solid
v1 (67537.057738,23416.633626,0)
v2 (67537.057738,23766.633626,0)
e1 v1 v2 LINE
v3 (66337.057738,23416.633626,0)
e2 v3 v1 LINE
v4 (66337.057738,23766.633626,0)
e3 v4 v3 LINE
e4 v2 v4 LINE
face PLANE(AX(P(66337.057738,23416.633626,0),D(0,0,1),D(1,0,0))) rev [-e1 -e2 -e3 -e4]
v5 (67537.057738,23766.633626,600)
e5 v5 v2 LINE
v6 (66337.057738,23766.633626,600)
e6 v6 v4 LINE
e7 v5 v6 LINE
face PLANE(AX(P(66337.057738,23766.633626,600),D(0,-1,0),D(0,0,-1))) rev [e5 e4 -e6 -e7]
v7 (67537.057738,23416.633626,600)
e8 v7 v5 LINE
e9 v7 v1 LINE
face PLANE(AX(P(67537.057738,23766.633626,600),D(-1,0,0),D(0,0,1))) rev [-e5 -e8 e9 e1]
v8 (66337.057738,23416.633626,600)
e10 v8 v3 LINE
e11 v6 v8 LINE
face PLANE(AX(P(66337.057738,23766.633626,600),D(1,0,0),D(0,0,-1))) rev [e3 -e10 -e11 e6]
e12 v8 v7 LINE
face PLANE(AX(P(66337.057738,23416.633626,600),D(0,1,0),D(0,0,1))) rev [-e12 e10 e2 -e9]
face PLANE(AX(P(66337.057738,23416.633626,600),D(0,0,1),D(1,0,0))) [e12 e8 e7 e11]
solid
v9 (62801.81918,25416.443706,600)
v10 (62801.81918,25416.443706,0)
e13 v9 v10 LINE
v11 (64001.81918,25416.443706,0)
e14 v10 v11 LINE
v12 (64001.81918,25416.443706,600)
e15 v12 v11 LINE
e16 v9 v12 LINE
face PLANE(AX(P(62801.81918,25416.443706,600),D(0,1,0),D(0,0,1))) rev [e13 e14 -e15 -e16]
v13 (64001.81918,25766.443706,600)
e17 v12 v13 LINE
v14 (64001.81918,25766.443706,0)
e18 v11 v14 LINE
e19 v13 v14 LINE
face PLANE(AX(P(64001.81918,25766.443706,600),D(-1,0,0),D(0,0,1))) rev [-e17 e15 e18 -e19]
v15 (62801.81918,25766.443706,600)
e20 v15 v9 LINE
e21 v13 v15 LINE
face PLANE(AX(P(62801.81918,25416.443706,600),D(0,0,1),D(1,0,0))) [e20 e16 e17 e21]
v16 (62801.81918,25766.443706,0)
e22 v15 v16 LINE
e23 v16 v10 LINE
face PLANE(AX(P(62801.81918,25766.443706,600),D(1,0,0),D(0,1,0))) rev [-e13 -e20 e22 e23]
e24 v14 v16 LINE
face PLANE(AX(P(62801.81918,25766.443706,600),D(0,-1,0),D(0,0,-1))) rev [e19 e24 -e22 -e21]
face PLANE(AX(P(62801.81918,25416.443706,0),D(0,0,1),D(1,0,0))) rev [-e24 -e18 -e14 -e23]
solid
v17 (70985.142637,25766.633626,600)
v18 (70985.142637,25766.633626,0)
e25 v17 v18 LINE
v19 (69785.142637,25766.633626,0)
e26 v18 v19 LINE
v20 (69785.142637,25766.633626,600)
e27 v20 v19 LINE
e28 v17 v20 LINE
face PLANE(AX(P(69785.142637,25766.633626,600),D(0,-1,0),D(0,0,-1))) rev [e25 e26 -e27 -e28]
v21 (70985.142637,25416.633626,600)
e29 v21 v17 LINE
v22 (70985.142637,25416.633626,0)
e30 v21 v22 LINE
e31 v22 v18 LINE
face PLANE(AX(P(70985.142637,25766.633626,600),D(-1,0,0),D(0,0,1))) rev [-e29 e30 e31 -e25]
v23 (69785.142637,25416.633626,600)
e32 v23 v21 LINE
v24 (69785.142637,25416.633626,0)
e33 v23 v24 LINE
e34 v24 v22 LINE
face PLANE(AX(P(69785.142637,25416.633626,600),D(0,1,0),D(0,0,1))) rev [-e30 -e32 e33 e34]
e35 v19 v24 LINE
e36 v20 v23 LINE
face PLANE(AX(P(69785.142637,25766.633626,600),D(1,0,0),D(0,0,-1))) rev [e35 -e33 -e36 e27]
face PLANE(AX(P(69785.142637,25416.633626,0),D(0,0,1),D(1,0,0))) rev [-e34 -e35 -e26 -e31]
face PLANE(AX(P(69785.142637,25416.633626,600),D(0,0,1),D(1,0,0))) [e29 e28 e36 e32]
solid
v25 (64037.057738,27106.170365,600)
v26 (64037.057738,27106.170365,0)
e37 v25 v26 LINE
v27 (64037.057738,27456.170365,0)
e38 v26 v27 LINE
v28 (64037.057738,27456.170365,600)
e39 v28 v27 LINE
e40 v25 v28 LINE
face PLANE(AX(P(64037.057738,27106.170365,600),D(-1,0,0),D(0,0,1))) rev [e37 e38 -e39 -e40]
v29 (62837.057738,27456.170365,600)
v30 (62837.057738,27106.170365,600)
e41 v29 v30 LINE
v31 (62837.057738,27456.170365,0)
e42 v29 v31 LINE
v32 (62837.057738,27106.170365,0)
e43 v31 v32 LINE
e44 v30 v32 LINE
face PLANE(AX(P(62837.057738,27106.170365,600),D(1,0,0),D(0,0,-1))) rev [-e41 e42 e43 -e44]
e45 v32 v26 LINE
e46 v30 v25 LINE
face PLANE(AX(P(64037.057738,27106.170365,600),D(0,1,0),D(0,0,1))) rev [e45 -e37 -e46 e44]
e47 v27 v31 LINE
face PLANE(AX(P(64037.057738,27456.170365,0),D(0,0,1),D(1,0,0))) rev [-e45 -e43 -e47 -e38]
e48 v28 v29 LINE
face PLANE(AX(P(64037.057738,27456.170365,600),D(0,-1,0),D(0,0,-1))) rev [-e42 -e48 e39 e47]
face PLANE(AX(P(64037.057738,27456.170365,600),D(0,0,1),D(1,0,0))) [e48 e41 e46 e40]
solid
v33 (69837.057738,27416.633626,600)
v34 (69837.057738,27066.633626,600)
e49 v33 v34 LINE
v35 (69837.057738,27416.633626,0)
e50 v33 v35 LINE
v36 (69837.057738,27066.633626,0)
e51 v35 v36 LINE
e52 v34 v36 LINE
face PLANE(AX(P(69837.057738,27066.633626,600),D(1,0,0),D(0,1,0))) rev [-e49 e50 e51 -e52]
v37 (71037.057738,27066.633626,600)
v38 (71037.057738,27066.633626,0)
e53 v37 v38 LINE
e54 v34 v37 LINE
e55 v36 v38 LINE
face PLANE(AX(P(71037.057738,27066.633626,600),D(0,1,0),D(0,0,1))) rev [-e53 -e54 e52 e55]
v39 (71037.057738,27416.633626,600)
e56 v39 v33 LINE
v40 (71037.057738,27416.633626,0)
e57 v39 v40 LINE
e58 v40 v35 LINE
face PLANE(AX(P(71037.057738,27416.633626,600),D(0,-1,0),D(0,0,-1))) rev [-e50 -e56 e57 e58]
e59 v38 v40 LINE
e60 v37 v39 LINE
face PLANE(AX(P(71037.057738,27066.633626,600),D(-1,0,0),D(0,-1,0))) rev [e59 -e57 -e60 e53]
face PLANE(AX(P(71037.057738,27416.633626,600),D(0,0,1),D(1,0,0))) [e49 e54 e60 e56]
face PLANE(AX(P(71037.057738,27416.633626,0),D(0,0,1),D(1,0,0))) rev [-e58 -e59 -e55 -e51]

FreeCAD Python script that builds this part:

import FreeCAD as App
import Part
import Sketcher
from FreeCAD import Vector
Q = App.Units.Quantity


def add_polygon(sketch, points):
    """Adds a closed chain of lines whose ends are joined by coincident constraints."""
    first, n = sketch.GeometryCount, len(points)
    for a, b in zip(points, points[1:] + points[:1]):
        sketch.addGeometry(Part.LineSegment(App.Vector(*a, 0), App.Vector(*b, 0)), False)
    for i in range(n):
        sketch.addConstraint(Sketcher.Constraint("Coincident", first + i, 2, first + (i + 1) % n, 1))

doc = App.newDocument("Part")
params = doc.addObject("Spreadsheet::Sheet", "Params")
for row, (alias, value) in enumerate([
    ("sketch1_width", "1200 mm"),
    ("sketch1_height", "350 mm"),
    ("pad1_length", "600 mm"),
    ("sketch2_width", "1200 mm"),
    ("sketch2_height", "350 mm"),
    ("pad2_length", "600 mm"),
    ("sketch3_width", "1200 mm"),
    ("sketch3_height", "350 mm"),
    ("pad3_length", "600 mm"),
    ("sketch4_width", "1200 mm"),
    ("sketch4_height", "350 mm"),
    ("pad4_length", "600 mm"),
    ("sketch5_width", "1200 mm"),
    ("sketch5_height", "350 mm"),
    ("pad5_length", "600 mm"),
], start=1):
    params.set(f"A{row}", alias)
    params.set(f"B{row}", "=" + value)
    params.setAlias(f"B{row}", alias)

body = doc.addObject("PartDesign::Body", "Body")

sketch1 = body.newObject("Sketcher::SketchObject", "Sketch")
sketch1.AttachmentSupport = (doc.getObject("XY_Plane"), [""])
sketch1.MapMode = "FlatFace"
add_polygon(sketch1, [(66337.057738, 23766.633626), (66337.057738, 23416.633626), (67537.057738, 23416.633626), (67537.057738, 23766.633626)])
sketch1.addConstraint([
    Sketcher.Constraint("Vertical", 0),
    Sketcher.Constraint("Horizontal", 1),
    Sketcher.Constraint("Vertical", 2),
    Sketcher.Constraint("Horizontal", 3),
    Sketcher.Constraint("DistanceX", 1, 1, 1, 2, Q("1200 mm")),
    Sketcher.Constraint("DistanceY", 0, 2, 0, 1, Q("350 mm")),
    Sketcher.Constraint("DistanceX", -1, 1, 0, 2, Q("66337.057738 mm")),
    Sketcher.Constraint("DistanceY", -1, 1, 0, 2, Q("23416.633626 mm")),
])
sketch1.setExpression("Constraints[8]", "Params.sketch1_width")
sketch1.setExpression("Constraints[9]", "Params.sketch1_height")
pad1 = body.newObject("PartDesign::Pad", "Pad")
pad1.Profile = sketch1
pad1.setExpression("Length", "Params.pad1_length")
body2 = doc.addObject("PartDesign::Body", "Body001")

sketch2 = body2.newObject("Sketcher::SketchObject", "Sketch001")
sketch2.AttachmentSupport = (doc.getObject("XY_Plane001"), [""])
sketch2.MapMode = "FlatFace"
add_polygon(sketch2, [(69785.142637, 25766.633626), (69785.142637, 25416.633626), (70985.142637, 25416.633626), (70985.142637, 25766.633626)])
sketch2.addConstraint([
    Sketcher.Constraint("Vertical", 0),
    Sketcher.Constraint("Horizontal", 1),
    Sketcher.Constraint("Vertical", 2),
    Sketcher.Constraint("Horizontal", 3),
    Sketcher.Constraint("DistanceX", 1, 1, 1, 2, Q("1200 mm")),
    Sketcher.Constraint("DistanceY", 0, 2, 0, 1, Q("350 mm")),
    Sketcher.Constraint("DistanceX", -1, 1, 0, 2, Q("69785.142637 mm")),
    Sketcher.Constraint("DistanceY", -1, 1, 0, 2, Q("25416.633626 mm")),
])
sketch2.setExpression("Constraints[8]", "Params.sketch2_width")
sketch2.setExpression("Constraints[9]", "Params.sketch2_height")
pad2 = body2.newObject("PartDesign::Pad", "Pad001")
pad2.Profile = sketch2
pad2.setExpression("Length", "Params.pad2_length")
body3 = doc.addObject("PartDesign::Body", "Body002")

sketch3 = body3.newObject("Sketcher::SketchObject", "Sketch002")
sketch3.AttachmentSupport = (doc.getObject("XY_Plane002"), [""])
sketch3.MapMode = "FlatFace"
add_polygon(sketch3, [(69837.057738, 27416.633626), (69837.057738, 27066.633626), (71037.057738, 27066.633626), (71037.057738, 27416.633626)])
sketch3.addConstraint([
    Sketcher.Constraint("Vertical", 0),
    Sketcher.Constraint("Horizontal", 1),
    Sketcher.Constraint("Vertical", 2),
    Sketcher.Constraint("Horizontal", 3),
    Sketcher.Constraint("DistanceX", 1, 1, 1, 2, Q("1200 mm")),
    Sketcher.Constraint("DistanceY", 0, 2, 0, 1, Q("350 mm")),
    Sketcher.Constraint("DistanceX", -1, 1, 0, 2, Q("69837.057738 mm")),
    Sketcher.Constraint("DistanceY", -1, 1, 0, 2, Q("27066.633626 mm")),
])
sketch3.setExpression("Constraints[8]", "Params.sketch3_width")
sketch3.setExpression("Constraints[9]", "Params.sketch3_height")
pad3 = body3.newObject("PartDesign::Pad", "Pad002")
pad3.Profile = sketch3
pad3.setExpression("Length", "Params.pad3_length")
body4 = doc.addObject("PartDesign::Body", "Body003")

sketch4 = body4.newObject("Sketcher::SketchObject", "Sketch003")
sketch4.AttachmentSupport = (doc.getObject("XY_Plane003"), [""])
sketch4.MapMode = "FlatFace"
add_polygon(sketch4, [(62837.057738, 27456.170365), (62837.057738, 27106.170365), (64037.057738, 27106.170365), (64037.057738, 27456.170365)])
sketch4.addConstraint([
    Sketcher.Constraint("Vertical", 0),
    Sketcher.Constraint("Horizontal", 1),
    Sketcher.Constraint("Vertical", 2),
    Sketcher.Constraint("Horizontal", 3),
    Sketcher.Constraint("DistanceX", 1, 1, 1, 2, Q("1200 mm")),
    Sketcher.Constraint("DistanceY", 0, 2, 0, 1, Q("350 mm")),
    Sketcher.Constraint("DistanceX", -1, 1, 0, 2, Q("62837.057738 mm")),
    Sketcher.Constraint("DistanceY", -1, 1, 0, 2, Q("27106.170365 mm")),
])
sketch4.setExpression("Constraints[8]", "Params.sketch4_width")
sketch4.setExpression("Constraints[9]", "Params.sketch4_height")
pad4 = body4.newObject("PartDesign::Pad", "Pad003")
pad4.Profile = sketch4
pad4.setExpression("Length", "Params.pad4_length")
body5 = doc.addObject("PartDesign::Body", "Body004")

sketch5 = body5.newObject("Sketcher::SketchObject", "Sketch004")
sketch5.AttachmentSupport = (doc.getObject("XY_Plane004"), [""])
sketch5.MapMode = "FlatFace"
add_polygon(sketch5, [(62801.81918, 25766.443706), (62801.81918, 25416.443706), (64001.81918, 25416.443706), (64001.81918, 25766.443706)])
sketch5.addConstraint([
    Sketcher.Constraint("Vertical", 0),
    Sketcher.Constraint("Horizontal", 1),
    Sketcher.Constraint("Vertical", 2),
    Sketcher.Constraint("Horizontal", 3),
    Sketcher.Constraint("DistanceX", 1, 1, 1, 2, Q("1200 mm")),
    Sketcher.Constraint("DistanceY", 0, 2, 0, 1, Q("350 mm")),
    Sketcher.Constraint("DistanceX", -1, 1, 0, 2, Q("62801.81918 mm")),
    Sketcher.Constraint("DistanceY", -1, 1, 0, 2, Q("25416.443706 mm")),
])
sketch5.setExpression("Constraints[8]", "Params.sketch5_width")
sketch5.setExpression("Constraints[9]", "Params.sketch5_height")
pad5 = body5.newObject("PartDesign::Pad", "Pad004")
pad5.Profile = sketch5
pad5.setExpression("Length", "Params.pad5_length")

doc.recompute()
